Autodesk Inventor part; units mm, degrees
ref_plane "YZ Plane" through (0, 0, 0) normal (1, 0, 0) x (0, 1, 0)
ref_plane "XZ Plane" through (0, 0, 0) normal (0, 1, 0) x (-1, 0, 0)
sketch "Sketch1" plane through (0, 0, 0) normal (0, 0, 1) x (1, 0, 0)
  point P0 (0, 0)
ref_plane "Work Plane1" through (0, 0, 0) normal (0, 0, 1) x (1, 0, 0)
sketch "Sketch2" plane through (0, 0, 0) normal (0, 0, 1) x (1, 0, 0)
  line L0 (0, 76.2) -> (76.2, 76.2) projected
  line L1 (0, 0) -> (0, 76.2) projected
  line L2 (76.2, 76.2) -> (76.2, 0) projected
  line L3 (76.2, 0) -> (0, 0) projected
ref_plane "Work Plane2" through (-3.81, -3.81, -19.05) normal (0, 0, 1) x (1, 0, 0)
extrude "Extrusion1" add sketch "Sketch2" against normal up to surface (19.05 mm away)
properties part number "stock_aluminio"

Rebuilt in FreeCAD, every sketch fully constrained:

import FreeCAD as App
import Part
import Sketcher

V = App.Vector
Q = App.Units.Quantity

doc = App.newDocument("Part")
body = doc.addObject("PartDesign::Body", "Body")

sketch1 = doc.addObject("Sketcher::SketchObject", "Sketch")
body.addObject(sketch1)
sketch1.AttachmentSupport = (doc.XY_Plane, [""])
sketch1.MapMode = "FlatFace"
sketch1.addGeometry([
    Part.LineSegment(V(76.2, 76.2, 0), V(0, 76.2, 0)),
    Part.LineSegment(V(0, 76.2, 0), V(0, 0, 0)),
    Part.LineSegment(V(0, 0, 0), V(76.2, 0, 0)),
    Part.LineSegment(V(76.2, 0, 0), V(76.2, 76.2, 0)),
], False)
sketch1.addConstraint([
    Sketcher.Constraint("Coincident", 0, 2, 1, 1),
    Sketcher.Constraint("Coincident", 1, 2, 2, 1),
    Sketcher.Constraint("Coincident", 2, 2, 3, 1),
    Sketcher.Constraint("Coincident", 3, 2, 0, 1),
    Sketcher.Constraint("Horizontal", 0),
    Sketcher.Constraint("Vertical", 1),
    Sketcher.Constraint("Horizontal", 2),
    Sketcher.Constraint("Vertical", 3),
    Sketcher.Constraint("Coincident", 1, 2, -1, 1),
    Sketcher.Constraint("Equal", 2, 1),
    Sketcher.Constraint("DistanceX", 0, 2, 0, 1, Q("3 in")),
])
pad1 = doc.addObject("PartDesign::Pad", "Pad")
body.addObject(pad1)
pad1.Profile = sketch1
pad1.Length = Q("0.75 in")
pad1.Reversed = True

doc.recompute()
